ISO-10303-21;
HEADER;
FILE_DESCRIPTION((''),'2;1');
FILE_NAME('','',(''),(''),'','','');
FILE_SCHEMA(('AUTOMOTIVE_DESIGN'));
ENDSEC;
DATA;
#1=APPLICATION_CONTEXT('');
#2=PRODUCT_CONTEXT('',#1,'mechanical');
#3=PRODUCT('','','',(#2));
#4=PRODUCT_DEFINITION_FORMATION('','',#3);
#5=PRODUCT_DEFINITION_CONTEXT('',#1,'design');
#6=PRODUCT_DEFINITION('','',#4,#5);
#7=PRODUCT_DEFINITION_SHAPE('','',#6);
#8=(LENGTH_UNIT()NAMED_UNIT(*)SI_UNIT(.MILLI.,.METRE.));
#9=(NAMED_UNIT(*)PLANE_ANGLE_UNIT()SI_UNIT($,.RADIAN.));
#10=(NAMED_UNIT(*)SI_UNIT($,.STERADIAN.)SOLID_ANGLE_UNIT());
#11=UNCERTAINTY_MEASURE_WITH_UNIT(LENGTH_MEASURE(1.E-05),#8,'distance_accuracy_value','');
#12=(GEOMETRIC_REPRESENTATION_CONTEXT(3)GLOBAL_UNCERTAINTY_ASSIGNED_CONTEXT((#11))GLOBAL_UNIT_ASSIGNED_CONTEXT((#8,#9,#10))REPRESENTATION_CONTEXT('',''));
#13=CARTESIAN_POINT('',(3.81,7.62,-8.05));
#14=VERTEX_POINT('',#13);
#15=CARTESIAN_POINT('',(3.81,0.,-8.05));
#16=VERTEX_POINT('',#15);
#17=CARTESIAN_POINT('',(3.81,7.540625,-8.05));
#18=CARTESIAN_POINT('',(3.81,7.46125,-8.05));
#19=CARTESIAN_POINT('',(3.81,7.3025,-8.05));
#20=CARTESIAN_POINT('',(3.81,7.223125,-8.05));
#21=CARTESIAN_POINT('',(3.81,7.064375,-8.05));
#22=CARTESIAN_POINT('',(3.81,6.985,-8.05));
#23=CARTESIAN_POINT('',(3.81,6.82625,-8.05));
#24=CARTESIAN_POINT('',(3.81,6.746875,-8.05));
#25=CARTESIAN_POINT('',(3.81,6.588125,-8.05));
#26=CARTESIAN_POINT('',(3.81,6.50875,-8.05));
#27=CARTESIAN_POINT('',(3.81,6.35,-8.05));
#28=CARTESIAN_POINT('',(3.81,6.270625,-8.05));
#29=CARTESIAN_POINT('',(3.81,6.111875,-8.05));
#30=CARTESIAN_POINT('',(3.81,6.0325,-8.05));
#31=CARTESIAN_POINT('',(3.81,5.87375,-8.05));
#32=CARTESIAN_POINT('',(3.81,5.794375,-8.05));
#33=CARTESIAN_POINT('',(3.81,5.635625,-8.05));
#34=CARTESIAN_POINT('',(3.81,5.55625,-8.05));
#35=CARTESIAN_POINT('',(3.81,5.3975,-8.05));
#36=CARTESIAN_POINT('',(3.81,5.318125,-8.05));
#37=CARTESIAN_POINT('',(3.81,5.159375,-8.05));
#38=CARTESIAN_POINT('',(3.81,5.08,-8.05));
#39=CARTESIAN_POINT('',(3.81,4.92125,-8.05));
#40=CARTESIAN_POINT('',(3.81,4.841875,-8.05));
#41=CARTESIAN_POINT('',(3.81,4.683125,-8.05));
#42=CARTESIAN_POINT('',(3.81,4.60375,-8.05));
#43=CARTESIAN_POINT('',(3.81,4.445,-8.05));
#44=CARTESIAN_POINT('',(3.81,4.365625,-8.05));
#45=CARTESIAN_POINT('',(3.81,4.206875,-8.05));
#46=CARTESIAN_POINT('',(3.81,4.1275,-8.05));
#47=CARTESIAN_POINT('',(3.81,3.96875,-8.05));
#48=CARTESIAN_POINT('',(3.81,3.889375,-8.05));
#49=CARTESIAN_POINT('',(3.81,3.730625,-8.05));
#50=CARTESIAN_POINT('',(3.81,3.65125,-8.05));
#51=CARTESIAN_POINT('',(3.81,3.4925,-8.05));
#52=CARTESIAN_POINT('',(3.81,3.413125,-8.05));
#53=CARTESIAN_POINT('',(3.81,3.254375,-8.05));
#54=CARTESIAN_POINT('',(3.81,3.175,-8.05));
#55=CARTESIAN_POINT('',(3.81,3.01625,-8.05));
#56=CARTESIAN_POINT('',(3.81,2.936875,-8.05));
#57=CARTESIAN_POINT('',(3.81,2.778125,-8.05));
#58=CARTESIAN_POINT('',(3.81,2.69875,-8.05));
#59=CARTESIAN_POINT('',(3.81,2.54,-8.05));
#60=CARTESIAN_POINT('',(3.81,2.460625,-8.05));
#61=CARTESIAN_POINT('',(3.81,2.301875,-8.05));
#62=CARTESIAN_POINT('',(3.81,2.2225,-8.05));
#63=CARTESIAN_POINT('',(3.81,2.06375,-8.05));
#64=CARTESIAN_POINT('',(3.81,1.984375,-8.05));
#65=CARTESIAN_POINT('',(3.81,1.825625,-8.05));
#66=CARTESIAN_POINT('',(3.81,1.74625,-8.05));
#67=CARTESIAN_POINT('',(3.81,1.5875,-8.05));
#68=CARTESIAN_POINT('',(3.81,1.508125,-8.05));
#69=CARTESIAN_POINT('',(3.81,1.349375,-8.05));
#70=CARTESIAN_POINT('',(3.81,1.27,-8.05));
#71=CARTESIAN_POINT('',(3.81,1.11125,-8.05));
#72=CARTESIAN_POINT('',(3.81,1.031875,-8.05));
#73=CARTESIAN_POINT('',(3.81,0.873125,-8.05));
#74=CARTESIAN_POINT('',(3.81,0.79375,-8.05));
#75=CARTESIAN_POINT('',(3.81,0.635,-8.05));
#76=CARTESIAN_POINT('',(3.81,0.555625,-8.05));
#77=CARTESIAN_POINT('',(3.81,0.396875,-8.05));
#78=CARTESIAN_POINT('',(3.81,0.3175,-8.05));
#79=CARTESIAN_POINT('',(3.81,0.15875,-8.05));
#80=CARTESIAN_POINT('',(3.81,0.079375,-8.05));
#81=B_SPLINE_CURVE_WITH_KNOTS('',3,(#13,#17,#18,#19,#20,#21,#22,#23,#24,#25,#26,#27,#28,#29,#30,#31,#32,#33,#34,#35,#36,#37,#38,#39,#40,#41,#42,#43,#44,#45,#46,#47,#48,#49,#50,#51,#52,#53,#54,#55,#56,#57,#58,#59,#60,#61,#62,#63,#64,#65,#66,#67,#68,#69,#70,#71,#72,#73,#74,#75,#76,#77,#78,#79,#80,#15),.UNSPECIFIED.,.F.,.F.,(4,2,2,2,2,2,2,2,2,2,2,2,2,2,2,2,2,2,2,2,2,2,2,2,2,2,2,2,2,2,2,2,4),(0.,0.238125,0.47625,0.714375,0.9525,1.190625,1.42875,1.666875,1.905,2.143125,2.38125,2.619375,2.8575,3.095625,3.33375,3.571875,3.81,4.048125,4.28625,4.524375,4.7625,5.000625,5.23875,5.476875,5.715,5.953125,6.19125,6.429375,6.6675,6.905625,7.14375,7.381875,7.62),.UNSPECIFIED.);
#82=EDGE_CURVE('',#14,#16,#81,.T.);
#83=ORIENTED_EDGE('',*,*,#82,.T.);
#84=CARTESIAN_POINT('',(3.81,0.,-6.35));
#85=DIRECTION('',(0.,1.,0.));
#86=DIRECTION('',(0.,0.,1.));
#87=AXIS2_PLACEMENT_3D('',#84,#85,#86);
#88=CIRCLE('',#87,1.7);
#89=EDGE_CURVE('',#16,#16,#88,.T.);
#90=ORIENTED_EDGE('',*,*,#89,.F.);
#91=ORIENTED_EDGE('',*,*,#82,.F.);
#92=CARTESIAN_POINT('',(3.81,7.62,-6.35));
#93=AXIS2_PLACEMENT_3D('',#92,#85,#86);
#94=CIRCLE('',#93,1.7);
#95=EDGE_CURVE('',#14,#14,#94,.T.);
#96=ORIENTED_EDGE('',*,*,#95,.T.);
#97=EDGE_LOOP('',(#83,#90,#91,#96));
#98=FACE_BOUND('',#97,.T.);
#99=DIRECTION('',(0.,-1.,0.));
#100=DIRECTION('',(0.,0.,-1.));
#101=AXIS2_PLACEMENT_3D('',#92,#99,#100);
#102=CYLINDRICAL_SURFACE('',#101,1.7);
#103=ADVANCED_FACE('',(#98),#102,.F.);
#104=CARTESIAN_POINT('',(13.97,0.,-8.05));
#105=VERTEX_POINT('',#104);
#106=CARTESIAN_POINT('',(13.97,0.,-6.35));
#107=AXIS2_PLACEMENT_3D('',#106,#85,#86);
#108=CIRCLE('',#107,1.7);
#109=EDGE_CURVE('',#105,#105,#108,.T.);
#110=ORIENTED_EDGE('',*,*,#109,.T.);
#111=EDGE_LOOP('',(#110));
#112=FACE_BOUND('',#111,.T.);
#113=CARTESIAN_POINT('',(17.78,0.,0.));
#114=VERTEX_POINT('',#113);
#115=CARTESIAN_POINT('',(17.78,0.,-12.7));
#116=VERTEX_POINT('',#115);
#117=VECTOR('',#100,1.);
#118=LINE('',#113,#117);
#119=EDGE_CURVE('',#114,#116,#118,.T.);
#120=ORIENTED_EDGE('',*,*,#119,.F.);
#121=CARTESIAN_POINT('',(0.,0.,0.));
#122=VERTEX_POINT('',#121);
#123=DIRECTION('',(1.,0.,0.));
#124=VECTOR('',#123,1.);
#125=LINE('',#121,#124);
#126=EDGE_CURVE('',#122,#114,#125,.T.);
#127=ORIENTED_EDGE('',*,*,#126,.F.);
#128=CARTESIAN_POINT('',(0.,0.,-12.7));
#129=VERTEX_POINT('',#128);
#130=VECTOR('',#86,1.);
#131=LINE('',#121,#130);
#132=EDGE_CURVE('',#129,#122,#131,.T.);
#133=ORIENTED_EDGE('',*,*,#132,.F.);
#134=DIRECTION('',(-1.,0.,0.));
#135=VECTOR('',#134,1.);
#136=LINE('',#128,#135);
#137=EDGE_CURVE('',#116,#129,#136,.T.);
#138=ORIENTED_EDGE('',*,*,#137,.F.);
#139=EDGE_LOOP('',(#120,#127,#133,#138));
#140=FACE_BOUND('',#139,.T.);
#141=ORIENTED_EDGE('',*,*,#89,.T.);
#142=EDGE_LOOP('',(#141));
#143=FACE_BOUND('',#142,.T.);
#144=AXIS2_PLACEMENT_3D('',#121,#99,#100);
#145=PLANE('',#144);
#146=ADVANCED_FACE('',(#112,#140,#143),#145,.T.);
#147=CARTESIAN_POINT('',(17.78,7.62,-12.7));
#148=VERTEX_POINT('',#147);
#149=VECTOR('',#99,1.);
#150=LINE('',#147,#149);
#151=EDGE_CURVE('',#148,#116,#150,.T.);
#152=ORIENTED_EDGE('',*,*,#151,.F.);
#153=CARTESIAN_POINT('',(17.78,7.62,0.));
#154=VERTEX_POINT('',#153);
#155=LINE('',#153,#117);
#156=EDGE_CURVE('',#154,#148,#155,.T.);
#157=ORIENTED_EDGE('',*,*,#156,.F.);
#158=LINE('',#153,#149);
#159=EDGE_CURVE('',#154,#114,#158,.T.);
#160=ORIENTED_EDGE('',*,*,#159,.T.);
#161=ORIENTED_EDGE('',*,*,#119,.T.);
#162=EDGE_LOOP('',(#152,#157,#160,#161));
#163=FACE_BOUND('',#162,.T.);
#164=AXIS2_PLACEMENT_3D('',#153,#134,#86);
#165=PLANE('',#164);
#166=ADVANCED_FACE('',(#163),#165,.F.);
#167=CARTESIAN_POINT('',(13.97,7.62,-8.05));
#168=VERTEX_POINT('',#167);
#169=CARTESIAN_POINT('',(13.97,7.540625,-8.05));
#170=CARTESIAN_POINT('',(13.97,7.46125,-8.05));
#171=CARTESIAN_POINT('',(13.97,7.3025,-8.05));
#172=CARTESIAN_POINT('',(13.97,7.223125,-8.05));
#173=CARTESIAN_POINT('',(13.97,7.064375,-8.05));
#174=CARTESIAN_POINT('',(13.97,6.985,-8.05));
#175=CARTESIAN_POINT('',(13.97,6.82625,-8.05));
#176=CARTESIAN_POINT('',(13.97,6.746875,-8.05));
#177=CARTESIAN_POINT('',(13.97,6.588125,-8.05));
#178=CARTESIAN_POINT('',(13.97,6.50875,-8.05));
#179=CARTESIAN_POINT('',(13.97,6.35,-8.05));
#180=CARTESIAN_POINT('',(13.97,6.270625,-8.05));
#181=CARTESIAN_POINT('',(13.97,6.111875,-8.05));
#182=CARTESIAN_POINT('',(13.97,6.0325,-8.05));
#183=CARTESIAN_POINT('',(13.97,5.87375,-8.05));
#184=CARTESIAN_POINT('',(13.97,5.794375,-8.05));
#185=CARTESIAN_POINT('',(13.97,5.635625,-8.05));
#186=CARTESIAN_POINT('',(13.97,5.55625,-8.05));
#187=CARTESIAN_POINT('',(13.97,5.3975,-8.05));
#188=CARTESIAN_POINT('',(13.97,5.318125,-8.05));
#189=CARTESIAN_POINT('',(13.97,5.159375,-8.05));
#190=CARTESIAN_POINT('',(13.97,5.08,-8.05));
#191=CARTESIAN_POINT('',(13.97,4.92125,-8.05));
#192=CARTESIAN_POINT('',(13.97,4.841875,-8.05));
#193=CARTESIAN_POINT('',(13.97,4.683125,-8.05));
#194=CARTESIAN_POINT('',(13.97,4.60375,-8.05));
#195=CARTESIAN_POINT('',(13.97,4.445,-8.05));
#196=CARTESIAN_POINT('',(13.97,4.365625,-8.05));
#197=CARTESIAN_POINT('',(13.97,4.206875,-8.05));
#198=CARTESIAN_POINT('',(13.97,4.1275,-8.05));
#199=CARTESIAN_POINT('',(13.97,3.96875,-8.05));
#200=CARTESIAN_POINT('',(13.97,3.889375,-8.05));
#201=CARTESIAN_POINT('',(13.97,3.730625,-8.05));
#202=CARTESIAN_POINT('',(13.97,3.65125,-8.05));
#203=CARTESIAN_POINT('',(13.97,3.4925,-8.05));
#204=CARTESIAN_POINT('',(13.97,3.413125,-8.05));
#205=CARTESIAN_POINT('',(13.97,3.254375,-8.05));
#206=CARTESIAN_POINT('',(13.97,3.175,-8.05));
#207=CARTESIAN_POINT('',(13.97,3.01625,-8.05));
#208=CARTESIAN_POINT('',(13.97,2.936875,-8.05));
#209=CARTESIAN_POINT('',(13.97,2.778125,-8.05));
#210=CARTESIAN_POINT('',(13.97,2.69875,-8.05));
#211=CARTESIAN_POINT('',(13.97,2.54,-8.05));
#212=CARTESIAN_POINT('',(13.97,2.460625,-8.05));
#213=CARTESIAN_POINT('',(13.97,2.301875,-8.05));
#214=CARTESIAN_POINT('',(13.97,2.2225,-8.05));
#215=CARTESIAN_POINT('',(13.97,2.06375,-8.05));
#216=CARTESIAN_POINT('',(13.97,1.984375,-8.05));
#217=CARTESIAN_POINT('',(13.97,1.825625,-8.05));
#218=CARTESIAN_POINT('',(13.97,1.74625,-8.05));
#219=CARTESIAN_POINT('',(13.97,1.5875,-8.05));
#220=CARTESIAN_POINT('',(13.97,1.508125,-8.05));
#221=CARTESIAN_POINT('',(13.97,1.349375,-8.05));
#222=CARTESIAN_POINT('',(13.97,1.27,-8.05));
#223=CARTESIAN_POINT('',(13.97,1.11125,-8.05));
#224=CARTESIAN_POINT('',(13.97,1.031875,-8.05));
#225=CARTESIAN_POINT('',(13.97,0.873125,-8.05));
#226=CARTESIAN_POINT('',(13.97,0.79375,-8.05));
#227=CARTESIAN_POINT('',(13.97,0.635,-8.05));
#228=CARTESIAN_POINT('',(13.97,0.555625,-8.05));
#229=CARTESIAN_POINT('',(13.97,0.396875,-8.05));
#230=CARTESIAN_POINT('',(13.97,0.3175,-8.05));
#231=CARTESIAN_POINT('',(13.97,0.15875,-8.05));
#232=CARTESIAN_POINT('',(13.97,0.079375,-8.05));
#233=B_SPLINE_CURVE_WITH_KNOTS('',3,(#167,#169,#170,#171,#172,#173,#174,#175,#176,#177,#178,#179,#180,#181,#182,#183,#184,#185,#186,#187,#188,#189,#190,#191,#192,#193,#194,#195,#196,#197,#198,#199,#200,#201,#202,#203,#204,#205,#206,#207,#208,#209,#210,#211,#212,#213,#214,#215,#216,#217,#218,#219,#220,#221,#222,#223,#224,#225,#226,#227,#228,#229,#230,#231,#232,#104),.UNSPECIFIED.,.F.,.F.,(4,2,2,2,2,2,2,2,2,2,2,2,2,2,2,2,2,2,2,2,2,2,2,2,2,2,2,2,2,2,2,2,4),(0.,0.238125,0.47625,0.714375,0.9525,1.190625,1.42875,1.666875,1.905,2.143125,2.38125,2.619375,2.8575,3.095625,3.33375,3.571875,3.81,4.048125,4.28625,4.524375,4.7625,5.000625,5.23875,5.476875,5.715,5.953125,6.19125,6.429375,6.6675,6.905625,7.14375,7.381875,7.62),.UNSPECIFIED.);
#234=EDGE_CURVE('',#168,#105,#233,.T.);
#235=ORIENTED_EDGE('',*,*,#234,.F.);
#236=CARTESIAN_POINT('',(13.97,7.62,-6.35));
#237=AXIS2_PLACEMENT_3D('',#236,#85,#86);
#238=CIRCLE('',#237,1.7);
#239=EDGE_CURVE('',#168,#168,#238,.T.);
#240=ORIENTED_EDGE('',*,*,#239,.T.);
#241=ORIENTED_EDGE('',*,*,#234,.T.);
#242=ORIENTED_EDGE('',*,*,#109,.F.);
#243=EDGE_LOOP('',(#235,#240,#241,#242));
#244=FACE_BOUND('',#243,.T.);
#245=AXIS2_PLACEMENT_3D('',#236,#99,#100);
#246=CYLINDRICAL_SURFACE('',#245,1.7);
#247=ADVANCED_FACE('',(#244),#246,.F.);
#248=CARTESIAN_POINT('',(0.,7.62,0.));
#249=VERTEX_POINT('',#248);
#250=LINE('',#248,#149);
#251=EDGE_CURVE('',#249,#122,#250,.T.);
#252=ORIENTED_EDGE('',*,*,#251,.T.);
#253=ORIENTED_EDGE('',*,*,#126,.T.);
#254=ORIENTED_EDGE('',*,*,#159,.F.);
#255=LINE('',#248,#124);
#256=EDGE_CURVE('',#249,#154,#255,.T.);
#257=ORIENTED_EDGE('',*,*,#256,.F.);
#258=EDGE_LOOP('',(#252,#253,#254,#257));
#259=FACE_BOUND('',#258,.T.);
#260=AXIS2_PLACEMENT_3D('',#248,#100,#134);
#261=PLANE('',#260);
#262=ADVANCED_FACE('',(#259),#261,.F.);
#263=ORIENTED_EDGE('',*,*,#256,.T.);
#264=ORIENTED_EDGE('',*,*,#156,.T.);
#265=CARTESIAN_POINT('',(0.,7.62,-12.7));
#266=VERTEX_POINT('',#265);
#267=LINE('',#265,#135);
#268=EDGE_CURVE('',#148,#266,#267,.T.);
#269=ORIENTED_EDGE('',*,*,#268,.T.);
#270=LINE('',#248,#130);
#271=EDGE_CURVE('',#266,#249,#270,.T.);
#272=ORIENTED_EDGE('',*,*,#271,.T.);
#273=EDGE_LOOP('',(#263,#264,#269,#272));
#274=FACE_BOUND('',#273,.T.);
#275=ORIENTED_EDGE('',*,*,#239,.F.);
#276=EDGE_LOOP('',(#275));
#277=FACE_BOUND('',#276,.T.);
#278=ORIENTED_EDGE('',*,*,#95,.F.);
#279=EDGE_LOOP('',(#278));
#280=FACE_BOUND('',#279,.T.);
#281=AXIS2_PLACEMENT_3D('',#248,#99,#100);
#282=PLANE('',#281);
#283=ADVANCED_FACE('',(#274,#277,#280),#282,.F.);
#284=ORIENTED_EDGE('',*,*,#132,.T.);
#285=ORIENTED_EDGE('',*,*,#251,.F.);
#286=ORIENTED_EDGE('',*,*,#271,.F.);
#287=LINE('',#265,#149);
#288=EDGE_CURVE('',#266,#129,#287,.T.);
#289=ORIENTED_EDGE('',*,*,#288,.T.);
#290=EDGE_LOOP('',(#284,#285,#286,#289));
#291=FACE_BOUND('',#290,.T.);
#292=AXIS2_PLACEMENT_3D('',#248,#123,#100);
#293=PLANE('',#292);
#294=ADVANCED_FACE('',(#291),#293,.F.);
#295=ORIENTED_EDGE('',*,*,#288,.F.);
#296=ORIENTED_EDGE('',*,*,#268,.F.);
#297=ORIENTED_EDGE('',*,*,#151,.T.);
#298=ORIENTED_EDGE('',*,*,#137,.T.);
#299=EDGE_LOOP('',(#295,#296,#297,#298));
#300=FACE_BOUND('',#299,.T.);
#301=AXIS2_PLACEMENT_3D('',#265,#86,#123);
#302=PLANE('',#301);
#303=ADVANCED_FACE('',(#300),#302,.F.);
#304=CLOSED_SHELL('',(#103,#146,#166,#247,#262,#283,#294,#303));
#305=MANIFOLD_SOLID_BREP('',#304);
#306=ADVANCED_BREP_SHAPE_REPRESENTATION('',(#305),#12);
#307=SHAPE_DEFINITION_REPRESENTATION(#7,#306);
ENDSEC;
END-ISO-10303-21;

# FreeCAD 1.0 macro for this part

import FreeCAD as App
import Part
import Sketcher
Q = App.Units.Quantity

doc = App.newDocument("Part")
body = doc.addObject("PartDesign::Body", "Body")

# Sketch on XZ plane
sketch1 = body.newObject("Sketcher::SketchObject", "Sketch")
sketch1.AttachmentSupport = (doc.getObject("XZ_Plane"), [""])
sketch1.MapMode = "FlatFace"
sketch1.addGeometry([
    Part.LineSegment(App.Vector(0, -12.7, 0), App.Vector(0, 0, 0)),  # 0
    Part.LineSegment(App.Vector(0, 0, 0), App.Vector(17.8, 0, 0)),  # 1
    Part.LineSegment(App.Vector(17.8, 0, 0), App.Vector(17.8, -12.7, 0)),  # 2
    Part.LineSegment(App.Vector(17.8, -12.7, 0), App.Vector(0, -12.7, 0)),  # 3
    Part.Circle(App.Vector(3.8, -6.3, 0), App.Vector(0, 0, 1), 1.7),  # 4
    Part.Circle(App.Vector(14, -6.3, 0), App.Vector(0, 0, 1), 1.7),  # 5
], False)
sketch1.addConstraint([
    Sketcher.Constraint("Coincident", 0, 2, 1, 1),
    Sketcher.Constraint("Coincident", 1, 2, 2, 1),
    Sketcher.Constraint("Coincident", 2, 2, 3, 1),
    Sketcher.Constraint("Coincident", 3, 2, 0, 1),
    Sketcher.Constraint("Vertical", 0),
    Sketcher.Constraint("Horizontal", 1),
    Sketcher.Constraint("Vertical", 2),
    Sketcher.Constraint("Horizontal", 3),
    Sketcher.Constraint("Coincident", 0, 2, -1, 1),
    Sketcher.Constraint("Equal", 4, 5),
    Sketcher.Constraint("Horizontal", 4, 3, 5, 3),
    Sketcher.Constraint("DistanceX", 1, 1, 1, 2, Q("0.7 in")),
    Sketcher.Constraint("DistanceY", 0, 1, 0, 2, Q("0.5 in")),
    Sketcher.Constraint("DistanceX", 4, 3, 5, 3, Q("0.4 in")),
    Sketcher.Constraint("Diameter", 4, Q("3.4 mm")),
    Sketcher.Constraint("DistanceX", -1, 1, 4, 3, Q("0.15 in")),
    Sketcher.Constraint("DistanceY", 4, 3, -1, 1, Q("0.25 in")),
])
pad1 = body.newObject("PartDesign::Pad", "Pad")
pad1.Profile = sketch1
pad1.Length = Q("0.3 in")
pad1.Reversed = True

doc.recompute()
